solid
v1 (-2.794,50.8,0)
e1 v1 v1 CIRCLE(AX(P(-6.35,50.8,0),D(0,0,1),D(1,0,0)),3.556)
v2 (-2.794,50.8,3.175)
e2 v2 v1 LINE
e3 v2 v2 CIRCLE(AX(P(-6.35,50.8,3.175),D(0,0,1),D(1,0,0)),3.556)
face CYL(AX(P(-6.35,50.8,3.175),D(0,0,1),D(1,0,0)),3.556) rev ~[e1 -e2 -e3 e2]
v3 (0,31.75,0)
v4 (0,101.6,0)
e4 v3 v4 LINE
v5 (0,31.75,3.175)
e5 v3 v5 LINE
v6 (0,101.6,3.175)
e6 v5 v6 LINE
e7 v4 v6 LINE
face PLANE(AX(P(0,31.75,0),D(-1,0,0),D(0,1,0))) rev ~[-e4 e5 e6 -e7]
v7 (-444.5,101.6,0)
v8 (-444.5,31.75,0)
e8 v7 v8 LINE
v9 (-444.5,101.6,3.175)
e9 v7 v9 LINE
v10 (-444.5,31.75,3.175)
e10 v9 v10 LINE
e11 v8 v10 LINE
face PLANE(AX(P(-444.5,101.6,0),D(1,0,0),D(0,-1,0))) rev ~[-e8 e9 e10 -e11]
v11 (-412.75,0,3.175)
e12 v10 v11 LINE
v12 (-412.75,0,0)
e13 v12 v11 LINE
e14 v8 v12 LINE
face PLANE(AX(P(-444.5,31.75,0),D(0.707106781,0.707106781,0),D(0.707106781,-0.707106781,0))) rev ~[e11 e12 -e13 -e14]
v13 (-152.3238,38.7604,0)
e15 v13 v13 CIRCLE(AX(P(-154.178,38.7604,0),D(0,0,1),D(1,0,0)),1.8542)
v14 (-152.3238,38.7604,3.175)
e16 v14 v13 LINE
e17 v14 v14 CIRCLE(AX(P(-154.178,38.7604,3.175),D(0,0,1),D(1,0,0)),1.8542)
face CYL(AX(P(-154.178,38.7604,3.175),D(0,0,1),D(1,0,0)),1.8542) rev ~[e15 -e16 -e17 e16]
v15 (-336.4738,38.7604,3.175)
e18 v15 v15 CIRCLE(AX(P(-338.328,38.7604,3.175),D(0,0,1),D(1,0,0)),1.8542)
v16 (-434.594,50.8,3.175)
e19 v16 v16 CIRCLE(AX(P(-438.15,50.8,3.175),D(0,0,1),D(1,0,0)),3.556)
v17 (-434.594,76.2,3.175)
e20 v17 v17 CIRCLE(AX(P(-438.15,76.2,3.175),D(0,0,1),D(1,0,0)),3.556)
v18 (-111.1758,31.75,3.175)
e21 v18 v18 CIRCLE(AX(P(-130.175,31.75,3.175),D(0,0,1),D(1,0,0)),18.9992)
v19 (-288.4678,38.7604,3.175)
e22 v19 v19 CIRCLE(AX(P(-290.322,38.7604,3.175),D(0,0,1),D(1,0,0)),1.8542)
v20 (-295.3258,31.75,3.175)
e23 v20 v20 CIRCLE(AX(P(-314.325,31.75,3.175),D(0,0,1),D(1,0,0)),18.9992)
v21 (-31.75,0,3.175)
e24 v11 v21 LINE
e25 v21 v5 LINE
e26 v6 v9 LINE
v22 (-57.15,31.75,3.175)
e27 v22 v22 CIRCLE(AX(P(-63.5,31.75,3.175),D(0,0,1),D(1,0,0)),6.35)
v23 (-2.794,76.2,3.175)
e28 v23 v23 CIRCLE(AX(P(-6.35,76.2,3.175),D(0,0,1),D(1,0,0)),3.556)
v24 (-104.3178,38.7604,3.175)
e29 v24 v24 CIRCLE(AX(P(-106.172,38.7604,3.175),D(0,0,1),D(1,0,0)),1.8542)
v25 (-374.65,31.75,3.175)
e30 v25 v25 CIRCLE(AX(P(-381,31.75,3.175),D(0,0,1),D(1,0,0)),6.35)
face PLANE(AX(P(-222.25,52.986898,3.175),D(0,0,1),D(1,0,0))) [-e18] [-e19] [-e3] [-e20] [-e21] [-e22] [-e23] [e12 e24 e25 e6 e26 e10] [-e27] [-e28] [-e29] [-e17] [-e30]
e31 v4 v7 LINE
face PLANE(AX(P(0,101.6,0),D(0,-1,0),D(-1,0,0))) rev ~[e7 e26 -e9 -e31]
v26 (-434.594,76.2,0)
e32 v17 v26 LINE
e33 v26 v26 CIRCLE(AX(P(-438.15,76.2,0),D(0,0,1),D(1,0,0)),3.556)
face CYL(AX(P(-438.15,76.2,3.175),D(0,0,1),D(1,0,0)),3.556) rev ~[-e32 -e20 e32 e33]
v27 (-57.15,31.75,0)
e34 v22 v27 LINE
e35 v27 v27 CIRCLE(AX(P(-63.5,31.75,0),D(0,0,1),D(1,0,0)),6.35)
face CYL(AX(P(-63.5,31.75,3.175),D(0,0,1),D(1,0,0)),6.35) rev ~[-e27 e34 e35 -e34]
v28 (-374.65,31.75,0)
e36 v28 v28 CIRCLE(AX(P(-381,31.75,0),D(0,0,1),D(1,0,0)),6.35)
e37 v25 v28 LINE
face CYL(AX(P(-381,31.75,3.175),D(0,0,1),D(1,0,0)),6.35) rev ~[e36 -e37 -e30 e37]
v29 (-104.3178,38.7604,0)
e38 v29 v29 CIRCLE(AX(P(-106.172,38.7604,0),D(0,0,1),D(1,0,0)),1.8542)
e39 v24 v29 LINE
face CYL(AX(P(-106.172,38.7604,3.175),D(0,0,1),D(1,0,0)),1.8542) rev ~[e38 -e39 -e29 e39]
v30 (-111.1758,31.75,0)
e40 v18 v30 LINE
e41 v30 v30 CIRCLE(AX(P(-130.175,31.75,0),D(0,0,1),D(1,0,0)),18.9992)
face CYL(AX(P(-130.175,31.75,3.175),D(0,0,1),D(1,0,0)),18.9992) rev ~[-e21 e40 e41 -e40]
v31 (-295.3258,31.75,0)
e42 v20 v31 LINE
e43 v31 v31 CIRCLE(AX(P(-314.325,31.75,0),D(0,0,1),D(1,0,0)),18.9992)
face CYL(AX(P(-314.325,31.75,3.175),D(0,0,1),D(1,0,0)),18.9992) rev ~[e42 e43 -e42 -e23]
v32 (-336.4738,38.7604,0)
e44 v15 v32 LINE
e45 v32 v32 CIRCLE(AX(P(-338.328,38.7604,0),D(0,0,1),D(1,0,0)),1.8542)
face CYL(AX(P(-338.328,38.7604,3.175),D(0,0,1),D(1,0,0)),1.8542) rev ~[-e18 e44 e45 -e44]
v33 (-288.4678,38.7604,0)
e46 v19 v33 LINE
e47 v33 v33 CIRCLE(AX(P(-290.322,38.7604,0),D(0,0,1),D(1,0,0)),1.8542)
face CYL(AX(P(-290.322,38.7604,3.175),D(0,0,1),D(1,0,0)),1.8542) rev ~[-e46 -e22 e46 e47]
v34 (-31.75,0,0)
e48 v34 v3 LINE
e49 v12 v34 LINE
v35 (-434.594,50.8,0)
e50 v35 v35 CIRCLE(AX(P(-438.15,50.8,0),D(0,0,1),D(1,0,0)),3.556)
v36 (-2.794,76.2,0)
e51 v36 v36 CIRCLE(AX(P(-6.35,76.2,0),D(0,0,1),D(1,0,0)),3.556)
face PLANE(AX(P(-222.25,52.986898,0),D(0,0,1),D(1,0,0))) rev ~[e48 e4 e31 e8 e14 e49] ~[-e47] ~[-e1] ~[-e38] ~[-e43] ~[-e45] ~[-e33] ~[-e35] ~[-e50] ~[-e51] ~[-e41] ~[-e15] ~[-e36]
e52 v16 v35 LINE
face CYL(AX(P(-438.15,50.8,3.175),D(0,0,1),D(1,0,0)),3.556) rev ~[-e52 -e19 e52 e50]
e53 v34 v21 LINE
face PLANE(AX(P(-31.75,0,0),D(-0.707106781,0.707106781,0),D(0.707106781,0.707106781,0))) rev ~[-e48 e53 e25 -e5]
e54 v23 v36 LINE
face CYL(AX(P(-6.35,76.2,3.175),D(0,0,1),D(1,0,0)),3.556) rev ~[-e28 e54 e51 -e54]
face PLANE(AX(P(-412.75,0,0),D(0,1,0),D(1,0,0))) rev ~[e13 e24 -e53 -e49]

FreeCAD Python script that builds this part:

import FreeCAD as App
import Part
import Sketcher

V = App.Vector
Q = App.Units.Quantity


def add_polygon(sketch, points):
    """Adds a closed chain of lines whose ends are joined by coincident constraints."""
    first, n = sketch.GeometryCount, len(points)
    for a, b in zip(points, points[1:] + points[:1]):
        sketch.addGeometry(Part.LineSegment(App.Vector(*a, 0), App.Vector(*b, 0)), False)
    for i in range(n):
        sketch.addConstraint(Sketcher.Constraint("Coincident", first + i, 2, first + (i + 1) % n, 1))

doc = App.newDocument("Part")
body = doc.addObject("PartDesign::Body", "Body")

# Sketch on XY plane
sketch1 = body.newObject("Sketcher::SketchObject", "Sketch")
sketch1.AttachmentSupport = (doc.getObject("XY_Plane"), [""])
sketch1.MapMode = "FlatFace"
add_polygon(sketch1, [(0, 32), (0, 102), (-444, 102), (-444, 32), (-413, 0), (-32, 0)])  # lines 0-5
sketch1.addConstraint([
    Sketcher.Constraint("Vertical", 0),
    Sketcher.Constraint("Horizontal", 1),
    Sketcher.Constraint("Vertical", 2),
    Sketcher.Constraint("Horizontal", 4),
    Sketcher.Constraint("PointOnObject", 0, 2, -2),
    Sketcher.Constraint("PointOnObject", 3, 2, -1),
    Sketcher.Constraint("Perpendicular", 3, 5),
    Sketcher.Constraint("Horizontal", 2, 2, 5, 2),
    Sketcher.Constraint("Equal", 3, 5),
    Sketcher.Constraint("DistanceX", 4, 1, 4, 2, Q("15 in")),
    Sketcher.Constraint("DistanceX", 1, 2, 1, 1, Q("17.5 in")),
    Sketcher.Constraint("DistanceY", -1, 1, 0, 2, Q("4 in")),
])
pad1 = body.newObject("PartDesign::Pad", "Pad")
pad1.Profile = sketch1
pad1.Length = Q("0.125 in")

# Sketch on XY plane
sketch2 = body.newObject("Sketcher::SketchObject", "Sketch001")
sketch2.AttachmentSupport = (doc.getObject("XY_Plane"), [""])
sketch2.MapMode = "FlatFace"
sketch2.AttachmentOffset = App.Placement(V(0, 0, 0.125 * 25.4), App.Rotation())
sketch2.addGeometry(Part.Circle(V(-438.1, 50.8, 0), V(0, 0, 1), 3.6), False)
sketch2.addConstraint([
    Sketcher.Constraint("Diameter", 0, Q("0.28 in")),
    Sketcher.Constraint("DistanceY", -1, 1, 0, 3, Q("2 in")),
    Sketcher.Constraint("DistanceX", 0, 3, -1, 1, Q("17.25 in")),
])
pocket1 = body.newObject("PartDesign::Pocket", "Pocket")
pocket1.Profile = sketch2
pocket1.Length = Q("1 in")

# Sketch on XY plane
sketch3 = body.newObject("Sketcher::SketchObject", "Sketch002")
sketch3.AttachmentSupport = (doc.getObject("XY_Plane"), [""])
sketch3.MapMode = "FlatFace"
sketch3.AttachmentOffset = App.Placement(V(0, 0, 0.125 * 25.4), App.Rotation())
sketch3.addGeometry(Part.Circle(V(-438.1, 76.2, 0), V(0, 0, 1), 3.6), False)
sketch3.addConstraint([
    Sketcher.Constraint("Diameter", 0, Q("0.28 in")),
    Sketcher.Constraint("DistanceY", -1, 1, 0, 3, Q("3 in")),
    Sketcher.Constraint("DistanceX", 0, 3, -1, 1, Q("17.25 in")),
])
pocket2 = body.newObject("PartDesign::Pocket", "Pocket001")
pocket2.Profile = sketch3
pocket2.Length = Q("1 in")

# Sketch on XY plane
sketch4 = body.newObject("Sketcher::SketchObject", "Sketch003")
sketch4.AttachmentSupport = (doc.getObject("XY_Plane"), [""])
sketch4.MapMode = "FlatFace"
sketch4.AttachmentOffset = App.Placement(V(0, 0, 0.125 * 25.4), App.Rotation())
sketch4.addGeometry(Part.Circle(V(-381, 32, 0), V(0, 0, 1), 6), False)
sketch4.addConstraint([
    Sketcher.Constraint("Diameter", 0, Q("0.5 in")),
    Sketcher.Constraint("DistanceX", 0, 3, -1, 1, Q("15 in")),
    Sketcher.Constraint("DistanceY", -1, 1, 0, 3, Q("1.25 in")),
])
pocket3 = body.newObject("PartDesign::Pocket", "Pocket002")
pocket3.Profile = sketch4
pocket3.Length = Q("1 in")

# Sketch on XY plane
sketch5 = body.newObject("Sketcher::SketchObject", "Sketch004")
sketch5.AttachmentSupport = (doc.getObject("XY_Plane"), [""])
sketch5.MapMode = "FlatFace"
sketch5.AttachmentOffset = App.Placement(V(0, 0, 0.125 * 25.4), App.Rotation())
sketch5.addGeometry(Part.Circle(V(-64, 32, 0), V(0, 0, 1), 6), False)
sketch5.addConstraint([
    Sketcher.Constraint("Diameter", 0, Q("0.5 in")),
    Sketcher.Constraint("DistanceX", 0, 3, -1, 1, Q("2.5 in")),
    Sketcher.Constraint("DistanceY", -1, 1, 0, 3, Q("1.25 in")),
])
pocket4 = body.newObject("PartDesign::Pocket", "Pocket003")
pocket4.Profile = sketch5
pocket4.Length = Q("1 in")

# Sketch on XY plane
sketch6 = body.newObject("Sketcher::SketchObject", "Sketch005")
sketch6.AttachmentSupport = (doc.getObject("XY_Plane"), [""])
sketch6.MapMode = "FlatFace"
sketch6.AttachmentOffset = App.Placement(V(0, 0, 0.125 * 25.4), App.Rotation())
sketch6.addGeometry(Part.Circle(V(-6.3, 76.2, 0), V(0, 0, 1), 3.6), False)
sketch6.addConstraint([
    Sketcher.Constraint("Diameter", 0, Q("0.28 in")),
    Sketcher.Constraint("DistanceY", -1, 1, 0, 3, Q("3 in")),
    Sketcher.Constraint("DistanceX", 0, 3, -1, 1, Q("0.25 in")),
])
pocket5 = body.newObject("PartDesign::Pocket", "Pocket004")
pocket5.Profile = sketch6
pocket5.Length = Q("1 in")

# Sketch on XY plane
sketch7 = body.newObject("Sketcher::SketchObject", "Sketch006")
sketch7.AttachmentSupport = (doc.getObject("XY_Plane"), [""])
sketch7.MapMode = "FlatFace"
sketch7.AttachmentOffset = App.Placement(V(0, 0, 0.125 * 25.4), App.Rotation())
sketch7.addGeometry(Part.Circle(V(-6.3, 50.8, 0), V(0, 0, 1), 3.6), False)
sketch7.addConstraint([
    Sketcher.Constraint("Diameter", 0, Q("0.28 in")),
    Sketcher.Constraint("DistanceY", -1, 1, 0, 3, Q("2 in")),
    Sketcher.Constraint("DistanceX", 0, 3, -1, 1, Q("0.25 in")),
])
pocket6 = body.newObject("PartDesign::Pocket", "Pocket005")
pocket6.Profile = sketch7
pocket6.Length = Q("1 in")

# Sketch on XY plane
sketch8 = body.newObject("Sketcher::SketchObject", "Sketch007")
sketch8.AttachmentSupport = (doc.getObject("XY_Plane"), [""])
sketch8.MapMode = "FlatFace"
sketch8.AttachmentOffset = App.Placement(V(0, 0, 0.125 * 25.4), App.Rotation())
sketch8.addGeometry([
    Part.Circle(V(-314.3, 31.8, 0), V(0, 0, 1), 19),  # 0
    Part.Circle(V(-338.3, 38.8, 0), V(0, 0, 1), 1.9),  # 1
    Part.Circle(V(-290.3, 38.8, 0), V(0, 0, 1), 1.9),  # 2
    Part.Circle(V(-130.2, 31.8, 0), V(0, 0, 1), 19),  # 3
    Part.Circle(V(-154.2, 38.8, 0), V(0, 0, 1), 1.9),  # 4
    Part.Circle(V(-106.2, 38.8, 0), V(0, 0, 1), 1.9),  # 5
], False)
sketch8.addConstraint([
    Sketcher.Constraint("Equal", 1, 2),
    Sketcher.Constraint("Equal", 0, 3),
    Sketcher.Constraint("Equal", 2, 4),
    Sketcher.Constraint("Equal", 4, 5),
    Sketcher.Constraint("Horizontal", 1, 3, 2, 3),
    Sketcher.Constraint("Horizontal", 0, 3, 3, 3),
    Sketcher.Constraint("Horizontal", 2, 3, 4, 3),
    Sketcher.Constraint("Horizontal", 4, 3, 5, 3),
    Sketcher.Constraint("Diameter", 0, Q("1.496 in")),
    Sketcher.Constraint("Diameter", 1, Q("0.146 in")),
    Sketcher.Constraint("DistanceY", -1, 1, 0, 3, Q("1.25 in")),
    Sketcher.Constraint("DistanceX", 1, 3, -1, 1, Q("13.32 in")),
    Sketcher.Constraint("DistanceX", 2, 3, -1, 1, Q("11.43 in")),
    Sketcher.Constraint("DistanceX", 4, 3, -1, 1, Q("6.07 in")),
    Sketcher.Constraint("DistanceX", 5, 3, -1, 1, Q("4.18 in")),
    Sketcher.Constraint("DistanceX", 0, 3, 3, 3, Q("7.25 in")),
    Sketcher.Constraint("DistanceX", 0, 3, -1, 1, Q("12.375 in")),
    Sketcher.Constraint("DistanceY", -1, 1, 1, 3, Q("1.526 in")),
])
pocket7 = body.newObject("PartDesign::Pocket", "Pocket006")
pocket7.Profile = sketch8
pocket7.Length = Q("1 in")

doc.recompute()
